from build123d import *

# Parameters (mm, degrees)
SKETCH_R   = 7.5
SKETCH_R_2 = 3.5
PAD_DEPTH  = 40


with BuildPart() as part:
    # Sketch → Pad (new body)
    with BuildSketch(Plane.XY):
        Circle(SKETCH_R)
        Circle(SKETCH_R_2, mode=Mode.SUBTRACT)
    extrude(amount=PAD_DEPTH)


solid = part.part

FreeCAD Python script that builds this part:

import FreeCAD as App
import Part
import Sketcher
from FreeCAD import Vector

doc = App.newDocument("Part")
body = doc.addObject("PartDesign::Body", "Body")

sketch1 = body.newObject("Sketcher::SketchObject", "Sketch")
sketch1.AttachmentSupport = (doc.getObject("XY_Plane"), [""])
sketch1.MapMode = "FlatFace"
sketch1.addGeometry([
    Part.Circle(Vector(0, 0, 0), Vector(0, 0, 1), 7.5),
    Part.Circle(Vector(0, 0, 0), Vector(0, 0, 1), 3.5),
], False)
sketch1.addConstraint([
    Sketcher.Constraint("Coincident", 0, 3, -1, 1),
    Sketcher.Constraint("Coincident", 1, 3, -1, 1),
    Sketcher.Constraint("Diameter", 0, 15.0),
    Sketcher.Constraint("Diameter", 1, 7.0),
])
pad1 = body.newObject("PartDesign::Pad", "Pad")
pad1.Profile = sketch1
pad1.Length = 40

doc.recompute()
